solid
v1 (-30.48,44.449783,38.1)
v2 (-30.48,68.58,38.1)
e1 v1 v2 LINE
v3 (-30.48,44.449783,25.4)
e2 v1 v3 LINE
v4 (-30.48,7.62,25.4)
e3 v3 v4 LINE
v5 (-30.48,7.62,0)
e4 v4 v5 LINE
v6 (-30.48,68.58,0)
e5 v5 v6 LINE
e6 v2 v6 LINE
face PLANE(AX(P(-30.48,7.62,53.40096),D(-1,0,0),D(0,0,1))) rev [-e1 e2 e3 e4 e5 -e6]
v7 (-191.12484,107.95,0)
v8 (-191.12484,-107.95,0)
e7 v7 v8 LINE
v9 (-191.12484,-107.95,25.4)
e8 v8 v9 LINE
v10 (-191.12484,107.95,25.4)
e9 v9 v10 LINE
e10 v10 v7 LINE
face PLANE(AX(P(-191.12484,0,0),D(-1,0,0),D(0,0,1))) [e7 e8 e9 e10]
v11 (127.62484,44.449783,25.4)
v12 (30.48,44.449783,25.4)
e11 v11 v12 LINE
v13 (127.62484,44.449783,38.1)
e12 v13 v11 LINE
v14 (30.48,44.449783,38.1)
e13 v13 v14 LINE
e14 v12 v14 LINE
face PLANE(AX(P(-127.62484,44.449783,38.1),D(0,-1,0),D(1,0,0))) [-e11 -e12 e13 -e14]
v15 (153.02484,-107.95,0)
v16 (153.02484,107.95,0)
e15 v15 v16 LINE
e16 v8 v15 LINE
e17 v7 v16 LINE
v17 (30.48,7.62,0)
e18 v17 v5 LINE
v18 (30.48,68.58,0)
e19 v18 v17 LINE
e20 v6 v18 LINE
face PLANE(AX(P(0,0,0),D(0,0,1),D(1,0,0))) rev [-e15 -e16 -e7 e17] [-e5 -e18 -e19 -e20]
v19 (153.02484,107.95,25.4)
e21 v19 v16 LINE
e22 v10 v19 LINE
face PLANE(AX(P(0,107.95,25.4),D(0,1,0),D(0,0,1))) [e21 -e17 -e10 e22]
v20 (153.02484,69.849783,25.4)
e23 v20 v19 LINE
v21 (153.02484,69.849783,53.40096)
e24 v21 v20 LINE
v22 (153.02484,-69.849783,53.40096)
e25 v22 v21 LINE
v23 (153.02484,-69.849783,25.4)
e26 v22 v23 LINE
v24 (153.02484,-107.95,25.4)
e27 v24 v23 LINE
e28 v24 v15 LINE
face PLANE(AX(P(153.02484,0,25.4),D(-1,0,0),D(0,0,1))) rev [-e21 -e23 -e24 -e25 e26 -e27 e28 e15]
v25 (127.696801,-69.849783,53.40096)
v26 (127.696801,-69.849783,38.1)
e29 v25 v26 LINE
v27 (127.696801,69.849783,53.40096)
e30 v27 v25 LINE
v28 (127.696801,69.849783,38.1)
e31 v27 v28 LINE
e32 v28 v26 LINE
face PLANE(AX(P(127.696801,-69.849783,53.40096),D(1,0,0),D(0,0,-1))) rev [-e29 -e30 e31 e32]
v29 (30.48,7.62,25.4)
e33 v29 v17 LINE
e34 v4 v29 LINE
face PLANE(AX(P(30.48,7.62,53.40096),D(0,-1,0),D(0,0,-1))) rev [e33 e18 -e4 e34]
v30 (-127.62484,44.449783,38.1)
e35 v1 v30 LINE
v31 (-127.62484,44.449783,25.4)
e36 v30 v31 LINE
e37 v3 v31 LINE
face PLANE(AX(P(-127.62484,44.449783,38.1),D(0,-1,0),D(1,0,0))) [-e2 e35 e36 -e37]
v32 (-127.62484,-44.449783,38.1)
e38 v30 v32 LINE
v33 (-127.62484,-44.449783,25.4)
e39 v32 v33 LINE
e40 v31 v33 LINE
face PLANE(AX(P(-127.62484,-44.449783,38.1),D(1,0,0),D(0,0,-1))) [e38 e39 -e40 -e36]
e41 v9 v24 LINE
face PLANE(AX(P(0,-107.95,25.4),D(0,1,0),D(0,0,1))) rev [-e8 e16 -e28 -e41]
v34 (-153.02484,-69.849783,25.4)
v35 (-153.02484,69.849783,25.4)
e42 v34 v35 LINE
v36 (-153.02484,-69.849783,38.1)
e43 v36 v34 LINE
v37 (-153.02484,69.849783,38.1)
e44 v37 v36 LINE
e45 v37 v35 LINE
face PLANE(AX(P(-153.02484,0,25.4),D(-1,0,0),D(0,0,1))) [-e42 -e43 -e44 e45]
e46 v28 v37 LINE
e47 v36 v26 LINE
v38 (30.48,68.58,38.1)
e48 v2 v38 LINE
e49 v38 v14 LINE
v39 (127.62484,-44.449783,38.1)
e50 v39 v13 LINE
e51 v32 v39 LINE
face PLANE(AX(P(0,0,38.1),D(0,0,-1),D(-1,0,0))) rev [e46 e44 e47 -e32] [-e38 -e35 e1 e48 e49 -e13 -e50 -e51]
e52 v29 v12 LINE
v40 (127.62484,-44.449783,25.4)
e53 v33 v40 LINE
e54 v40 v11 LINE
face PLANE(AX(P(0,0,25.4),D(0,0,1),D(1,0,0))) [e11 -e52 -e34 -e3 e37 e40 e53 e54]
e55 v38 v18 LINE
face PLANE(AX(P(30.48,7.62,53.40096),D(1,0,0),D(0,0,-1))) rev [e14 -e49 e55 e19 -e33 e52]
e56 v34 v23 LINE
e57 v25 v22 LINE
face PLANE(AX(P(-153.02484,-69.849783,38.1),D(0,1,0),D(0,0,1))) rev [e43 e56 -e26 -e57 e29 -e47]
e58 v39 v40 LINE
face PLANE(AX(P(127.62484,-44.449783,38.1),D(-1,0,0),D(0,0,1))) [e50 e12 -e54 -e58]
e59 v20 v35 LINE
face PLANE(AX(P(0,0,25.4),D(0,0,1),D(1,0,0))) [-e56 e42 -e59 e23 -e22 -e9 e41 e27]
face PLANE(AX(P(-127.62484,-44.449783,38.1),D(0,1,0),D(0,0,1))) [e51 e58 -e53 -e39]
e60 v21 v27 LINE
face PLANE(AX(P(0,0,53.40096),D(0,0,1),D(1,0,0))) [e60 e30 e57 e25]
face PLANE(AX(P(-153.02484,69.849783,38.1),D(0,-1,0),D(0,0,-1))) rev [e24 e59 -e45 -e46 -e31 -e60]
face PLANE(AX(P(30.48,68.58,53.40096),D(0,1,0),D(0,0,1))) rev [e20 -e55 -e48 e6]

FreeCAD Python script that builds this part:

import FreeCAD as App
import Part
import Sketcher
Q = App.Units.Quantity


def add_polygon(sketch, points):
    """Adds a closed chain of lines whose ends are joined by coincident constraints."""
    first, n = sketch.GeometryCount, len(points)
    for a, b in zip(points, points[1:] + points[:1]):
        sketch.addGeometry(Part.LineSegment(App.Vector(*a, 0), App.Vector(*b, 0)), False)
    for i in range(n):
        sketch.addConstraint(Sketcher.Constraint("Coincident", first + i, 2, first + (i + 1) % n, 1))

doc = App.newDocument("Part")
body = doc.addObject("PartDesign::Body", "Body")

# Sketch on XY plane
sketch1 = body.newObject("Sketcher::SketchObject", "Sketch")
sketch1.AttachmentSupport = (doc.getObject("XY_Plane"), [""])
sketch1.MapMode = "FlatFace"
add_polygon(sketch1, [(-153, 108), (-153, -108), (153, -108), (153, 108)])  # lines 0-3
sketch1.addConstraint([
    Sketcher.Constraint("Vertical", 0),
    Sketcher.Constraint("Horizontal", 1),
    Sketcher.Constraint("Vertical", 2),
    Sketcher.Constraint("Horizontal", 3),
    Sketcher.Constraint("Symmetric", 0, 2, 2, 2, -1, 1),
    Sketcher.Constraint("DistanceY", 0, 2, 0, 1, Q("8.5 in")),
    Sketcher.Constraint("DistanceX", 1, 1, 1, 2, Q("12.0492 in")),
])
pad1 = body.newObject("PartDesign::Pad", "Pad")
pad1.Profile = sketch1
pad1.Length = Q("1 in")

# Sketch on XY plane
sketch2 = body.newObject("Sketcher::SketchObject", "Sketch001")
sketch2.AttachmentSupport = (doc.getObject("XY_Plane"), [""])
sketch2.MapMode = "FlatFace"
sketch2.AttachmentOffset = App.Placement(App.Vector(0, 0, 1 * 25.4), App.Rotation())
add_polygon(sketch2, [(-153, 70), (-153, -70), (153, -70), (153, 70)])  # lines 0-3
add_polygon(sketch2, [(128, -44), (-128, -44), (-128, 44), (128, 44)])  # lines 4-7
sketch2.addConstraint([
    Sketcher.Constraint("Vertical", 0),
    Sketcher.Constraint("Horizontal", 1),
    Sketcher.Constraint("Vertical", 2),
    Sketcher.Constraint("Horizontal", 3),
    Sketcher.Constraint("Horizontal", 4),
    Sketcher.Constraint("Vertical", 5),
    Sketcher.Constraint("Horizontal", 6),
    Sketcher.Constraint("Vertical", 7),
    Sketcher.Constraint("Symmetric", 0, 2, 2, 2, -1, 1),
    Sketcher.Constraint("Symmetric", 4, 2, 6, 2, -1, 1),
    Sketcher.Constraint("DistanceX", 0, 2, 4, 2, Q("1 in")),
    Sketcher.Constraint("DistanceY", 0, 2, 4, 2, Q("1 in")),
    Sketcher.Constraint("DistanceX", 1, 1, 1, 2, Q("12.0492 in")),
    Sketcher.Constraint("DistanceY", 0, 2, 0, 1, 139.699566),
])
pad2 = body.newObject("PartDesign::Pad", "Pad001")
pad2.Profile = sketch2
pad2.Length = Q("0.5 in")

# Sketch on XY plane
sketch3 = body.newObject("Sketcher::SketchObject", "Sketch002")
sketch3.AttachmentSupport = (doc.getObject("XY_Plane"), [""])
sketch3.MapMode = "FlatFace"
sketch3.AttachmentOffset = App.Placement(App.Vector(0, 0, 1.5 * 25.4), App.Rotation())
add_polygon(sketch3, [(128, 70), (128, -70), (153, -70), (153, 70)])  # lines 0-3
sketch3.addConstraint([
    Sketcher.Constraint("Vertical", 0),
    Sketcher.Constraint("Horizontal", 1),
    Sketcher.Constraint("Vertical", 2),
    Sketcher.Constraint("Horizontal", 3),
    Sketcher.Constraint("DistanceX", -1, 1, 1, 2, Q("6.0246 in")),
    Sketcher.Constraint("DistanceX", 1, 1, 1, 2, 25.328039),
    Sketcher.Constraint("DistanceY", 0, 2, 0, 1, 139.699566),
    Sketcher.Constraint("DistanceY", 0, 2, -1, 1, 69.849783),
])
pad3 = body.newObject("PartDesign::Pad", "Pad002")
pad3.Profile = sketch3
pad3.Length = Q("0.6024 in")

# Sketch on XY plane
sketch4 = body.newObject("Sketcher::SketchObject", "Sketch003")
sketch4.AttachmentSupport = (doc.getObject("XY_Plane"), [""])
sketch4.MapMode = "FlatFace"
add_polygon(sketch4, [(30, 69), (30, 8), (-30, 8), (-30, 69)])  # lines 0-3
sketch4.addConstraint([
    Sketcher.Constraint("Vertical", 0),
    Sketcher.Constraint("Horizontal", 1),
    Sketcher.Constraint("Vertical", 2),
    Sketcher.Constraint("Horizontal", 3),
    Sketcher.Constraint("Equal", 3, 0),
    Sketcher.Constraint("DistanceX", 1, 2, 1, 1, Q("2.4 in")),
    Sketcher.Constraint("DistanceX", -1, 1, 0, 2, Q("1.2 in")),
    Sketcher.Constraint("DistanceY", -1, 1, 0, 2, Q("0.3 in")),
])
pocket1 = body.newObject("PartDesign::Pocket", "Pocket")
pocket1.Profile = sketch4
pocket1.Type = "ThroughAll"
pocket1.Reversed = True

# Sketch on YZ plane
sketch5 = body.newObject("Sketcher::SketchObject", "Sketch004")
sketch5.AttachmentSupport = (doc.getObject("YZ_Plane"), [""])
sketch5.MapMode = "FlatFace"
sketch5.AttachmentOffset = App.Placement(App.Vector(0, 0, -6.0246 * 25.4), App.Rotation())
add_polygon(sketch5, [(108, 0), (-108, 0), (-108, 25), (108, 25)])  # lines 0-3
sketch5.addConstraint([
    Sketcher.Constraint("Horizontal", 0),
    Sketcher.Constraint("Vertical", 1),
    Sketcher.Constraint("Horizontal", 2),
    Sketcher.Constraint("Vertical", 3),
    Sketcher.Constraint("Symmetric", 0, 2, 3, 2, -1, 1),
    Sketcher.Constraint("DistanceY", 1, 1, 1, 2, Q("1 in")),
    Sketcher.Constraint("DistanceX", 0, 2, 0, 1, Q("8.5 in")),
])
pad4 = body.newObject("PartDesign::Pad", "Pad003")
pad4.Profile = sketch5
pad4.Length = Q("1.5 in")
pad4.Reversed = True

doc.recompute()
